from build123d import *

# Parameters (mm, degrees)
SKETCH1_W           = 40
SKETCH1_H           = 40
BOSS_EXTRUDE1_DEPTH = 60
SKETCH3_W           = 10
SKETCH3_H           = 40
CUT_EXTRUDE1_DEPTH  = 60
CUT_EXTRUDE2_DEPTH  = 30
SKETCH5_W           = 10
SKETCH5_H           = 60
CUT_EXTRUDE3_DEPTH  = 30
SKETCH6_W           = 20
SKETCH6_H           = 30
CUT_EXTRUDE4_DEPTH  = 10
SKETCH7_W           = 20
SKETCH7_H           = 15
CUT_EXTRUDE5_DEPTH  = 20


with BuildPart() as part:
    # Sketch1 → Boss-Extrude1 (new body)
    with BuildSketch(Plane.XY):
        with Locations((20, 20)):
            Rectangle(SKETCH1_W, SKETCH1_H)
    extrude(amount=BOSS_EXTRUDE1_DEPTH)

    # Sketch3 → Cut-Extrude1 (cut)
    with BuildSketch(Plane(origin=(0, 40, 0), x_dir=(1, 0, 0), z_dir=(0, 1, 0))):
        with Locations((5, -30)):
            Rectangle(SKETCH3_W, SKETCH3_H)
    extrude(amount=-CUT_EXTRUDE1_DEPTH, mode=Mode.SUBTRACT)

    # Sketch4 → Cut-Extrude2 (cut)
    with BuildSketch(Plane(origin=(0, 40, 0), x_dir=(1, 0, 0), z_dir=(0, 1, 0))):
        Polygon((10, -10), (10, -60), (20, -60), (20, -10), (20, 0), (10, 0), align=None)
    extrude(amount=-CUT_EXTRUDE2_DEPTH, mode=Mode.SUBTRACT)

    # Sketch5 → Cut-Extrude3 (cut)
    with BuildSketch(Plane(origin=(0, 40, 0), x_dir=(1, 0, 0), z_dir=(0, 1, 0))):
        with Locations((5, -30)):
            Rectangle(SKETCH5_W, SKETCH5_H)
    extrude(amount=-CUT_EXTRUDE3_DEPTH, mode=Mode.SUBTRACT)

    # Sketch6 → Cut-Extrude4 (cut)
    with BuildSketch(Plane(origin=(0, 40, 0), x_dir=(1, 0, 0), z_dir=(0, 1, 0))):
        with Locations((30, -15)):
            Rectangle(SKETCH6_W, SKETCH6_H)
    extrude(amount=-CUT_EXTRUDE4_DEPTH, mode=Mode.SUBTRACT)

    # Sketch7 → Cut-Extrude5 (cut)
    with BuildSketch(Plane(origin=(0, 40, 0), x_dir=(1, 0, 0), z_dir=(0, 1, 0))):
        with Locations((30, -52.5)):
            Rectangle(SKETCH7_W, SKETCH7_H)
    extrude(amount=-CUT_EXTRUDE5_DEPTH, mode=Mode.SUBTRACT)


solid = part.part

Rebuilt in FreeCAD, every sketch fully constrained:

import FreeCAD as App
import Part
import Sketcher
Q = App.Units.Quantity


def add_polygon(sketch, points):
    """Adds a closed chain of lines whose ends are joined by coincident constraints."""
    first, n = sketch.GeometryCount, len(points)
    for a, b in zip(points, points[1:] + points[:1]):
        sketch.addGeometry(Part.LineSegment(App.Vector(*a, 0), App.Vector(*b, 0)), False)
    for i in range(n):
        sketch.addConstraint(Sketcher.Constraint("Coincident", first + i, 2, first + (i + 1) % n, 1))

doc = App.newDocument("Part")
body = doc.addObject("PartDesign::Body", "Body")

# Sketch on XY plane
sketch1 = body.newObject("Sketcher::SketchObject", "Sketch")
sketch1.AttachmentSupport = (doc.getObject("XY_Plane"), [""])
sketch1.MapMode = "FlatFace"
add_polygon(sketch1, [(0, 40), (0, 0), (40, 0), (40, 40)])  # lines 0-3
sketch1.addConstraint([
    Sketcher.Constraint("Vertical", 0),
    Sketcher.Constraint("Horizontal", 1),
    Sketcher.Constraint("Vertical", 2),
    Sketcher.Constraint("Horizontal", 3),
    Sketcher.Constraint("Coincident", 0, 2, -1, 1),
    Sketcher.Constraint("Equal", 3, 0),
    Sketcher.Constraint("DistanceX", 1, 1, 1, 2, Q("40 mm")),
])
pad1 = body.newObject("PartDesign::Pad", "Pad")
pad1.Profile = sketch1
pad1.Length = 60

# Sketch on XZ plane
sketch2 = body.newObject("Sketcher::SketchObject", "Sketch001")
sketch2.AttachmentSupport = (doc.getObject("XZ_Plane"), [""])
sketch2.MapMode = "FlatFace"
sketch2.AttachmentOffset = App.Placement(App.Vector(0, 0, -40), App.Rotation())
add_polygon(sketch2, [(0, 10), (0, 50), (10, 50), (10, 10)])  # lines 0-3
sketch2.addConstraint([
    Sketcher.Constraint("Vertical", 0),
    Sketcher.Constraint("Horizontal", 1),
    Sketcher.Constraint("Vertical", 2),
    Sketcher.Constraint("Horizontal", 3),
    Sketcher.Constraint("PointOnObject", 0, 2, -2),
    Sketcher.Constraint("DistanceX", 1, 1, 1, 2, Q("10 mm")),
    Sketcher.Constraint("DistanceY", 0, 1, 0, 2, Q("40 mm")),
    Sketcher.Constraint("DistanceY", -1, 1, 0, 2, Q("50 mm")),
])
pocket1 = body.newObject("PartDesign::Pocket", "Pocket")
pocket1.Profile = sketch2
pocket1.Length = 60
pocket1.Reversed = True

# Sketch on XZ plane
sketch3 = body.newObject("Sketcher::SketchObject", "Sketch002")
sketch3.AttachmentSupport = (doc.getObject("XZ_Plane"), [""])
sketch3.MapMode = "FlatFace"
sketch3.AttachmentOffset = App.Placement(App.Vector(0, 0, -40), App.Rotation())
add_polygon(sketch3, [(10, 60), (20, 60), (20, 0), (10, 0)])  # lines 0-3
sketch3.addConstraint([
    Sketcher.Constraint("Horizontal", 0),
    Sketcher.Constraint("Vertical", 1),
    Sketcher.Constraint("Horizontal", 2),
    Sketcher.Constraint("Vertical", 3),
    Sketcher.Constraint("PointOnObject", 1, 2, -1),
    Sketcher.Constraint("DistanceX", 0, 1, 0, 2, Q("10 mm")),
    Sketcher.Constraint("DistanceY", 1, 2, 1, 1, Q("60 mm")),
    Sketcher.Constraint("DistanceX", -1, 1, 0, 2, Q("20 mm")),
])
pocket2 = body.newObject("PartDesign::Pocket", "Pocket001")
pocket2.Profile = sketch3
pocket2.Length = 30
pocket2.Reversed = True

# Sketch on XZ plane
sketch4 = body.newObject("Sketcher::SketchObject", "Sketch003")
sketch4.AttachmentSupport = (doc.getObject("XZ_Plane"), [""])
sketch4.MapMode = "FlatFace"
sketch4.AttachmentOffset = App.Placement(App.Vector(0, 0, -40), App.Rotation())
add_polygon(sketch4, [(0, 0), (0, 60), (10, 60), (10, 0)])  # lines 0-3
sketch4.addConstraint([
    Sketcher.Constraint("Vertical", 0),
    Sketcher.Constraint("Horizontal", 1),
    Sketcher.Constraint("Vertical", 2),
    Sketcher.Constraint("Horizontal", 3),
    Sketcher.Constraint("Coincident", 3, 2, -1, 1),
    Sketcher.Constraint("DistanceX", 1, 1, 1, 2, Q("10 mm")),
    Sketcher.Constraint("DistanceY", 0, 1, 0, 2, Q("60 mm")),
])
pocket3 = body.newObject("PartDesign::Pocket", "Pocket002")
pocket3.Profile = sketch4
pocket3.Length = 30
pocket3.Reversed = True

# Sketch on XZ plane
sketch5 = body.newObject("Sketcher::SketchObject", "Sketch004")
sketch5.AttachmentSupport = (doc.getObject("XZ_Plane"), [""])
sketch5.MapMode = "FlatFace"
sketch5.AttachmentOffset = App.Placement(App.Vector(0, 0, -40), App.Rotation())
add_polygon(sketch5, [(20, 0), (20, 30), (40, 30), (40, 0)])  # lines 0-3
sketch5.addConstraint([
    Sketcher.Constraint("Vertical", 0),
    Sketcher.Constraint("Horizontal", 1),
    Sketcher.Constraint("Vertical", 2),
    Sketcher.Constraint("Horizontal", 3),
    Sketcher.Constraint("PointOnObject", 2, 2, -1),
    Sketcher.Constraint("DistanceX", 1, 1, 1, 2, Q("20 mm")),
    Sketcher.Constraint("DistanceY", 0, 1, 0, 2, Q("30 mm")),
    Sketcher.Constraint("DistanceX", -1, 1, 0, 2, Q("20 mm")),
])
pocket4 = body.newObject("PartDesign::Pocket", "Pocket003")
pocket4.Profile = sketch5
pocket4.Length = 10
pocket4.Reversed = True

# Sketch on XZ plane
sketch6 = body.newObject("Sketcher::SketchObject", "Sketch005")
sketch6.AttachmentSupport = (doc.getObject("XZ_Plane"), [""])
sketch6.MapMode = "FlatFace"
sketch6.AttachmentOffset = App.Placement(App.Vector(0, 0, -40), App.Rotation())
add_polygon(sketch6, [(20, 45), (20, 60), (40, 60), (40, 45)])  # lines 0-3
sketch6.addConstraint([
    Sketcher.Constraint("Vertical", 0),
    Sketcher.Constraint("Horizontal", 1),
    Sketcher.Constraint("Vertical", 2),
    Sketcher.Constraint("Horizontal", 3),
    Sketcher.Constraint("DistanceX", 1, 1, 1, 2, Q("20 mm")),
    Sketcher.Constraint("DistanceY", 0, 1, 0, 2, Q("15 mm")),
    Sketcher.Constraint("DistanceX", -1, 1, 0, 2, Q("20 mm")),
    Sketcher.Constraint("DistanceY", -1, 1, 0, 2, Q("60 mm")),
])
pocket5 = body.newObject("PartDesign::Pocket", "Pocket004")
pocket5.Profile = sketch6
pocket5.Length = 20
pocket5.Reversed = True

doc.recompute()
